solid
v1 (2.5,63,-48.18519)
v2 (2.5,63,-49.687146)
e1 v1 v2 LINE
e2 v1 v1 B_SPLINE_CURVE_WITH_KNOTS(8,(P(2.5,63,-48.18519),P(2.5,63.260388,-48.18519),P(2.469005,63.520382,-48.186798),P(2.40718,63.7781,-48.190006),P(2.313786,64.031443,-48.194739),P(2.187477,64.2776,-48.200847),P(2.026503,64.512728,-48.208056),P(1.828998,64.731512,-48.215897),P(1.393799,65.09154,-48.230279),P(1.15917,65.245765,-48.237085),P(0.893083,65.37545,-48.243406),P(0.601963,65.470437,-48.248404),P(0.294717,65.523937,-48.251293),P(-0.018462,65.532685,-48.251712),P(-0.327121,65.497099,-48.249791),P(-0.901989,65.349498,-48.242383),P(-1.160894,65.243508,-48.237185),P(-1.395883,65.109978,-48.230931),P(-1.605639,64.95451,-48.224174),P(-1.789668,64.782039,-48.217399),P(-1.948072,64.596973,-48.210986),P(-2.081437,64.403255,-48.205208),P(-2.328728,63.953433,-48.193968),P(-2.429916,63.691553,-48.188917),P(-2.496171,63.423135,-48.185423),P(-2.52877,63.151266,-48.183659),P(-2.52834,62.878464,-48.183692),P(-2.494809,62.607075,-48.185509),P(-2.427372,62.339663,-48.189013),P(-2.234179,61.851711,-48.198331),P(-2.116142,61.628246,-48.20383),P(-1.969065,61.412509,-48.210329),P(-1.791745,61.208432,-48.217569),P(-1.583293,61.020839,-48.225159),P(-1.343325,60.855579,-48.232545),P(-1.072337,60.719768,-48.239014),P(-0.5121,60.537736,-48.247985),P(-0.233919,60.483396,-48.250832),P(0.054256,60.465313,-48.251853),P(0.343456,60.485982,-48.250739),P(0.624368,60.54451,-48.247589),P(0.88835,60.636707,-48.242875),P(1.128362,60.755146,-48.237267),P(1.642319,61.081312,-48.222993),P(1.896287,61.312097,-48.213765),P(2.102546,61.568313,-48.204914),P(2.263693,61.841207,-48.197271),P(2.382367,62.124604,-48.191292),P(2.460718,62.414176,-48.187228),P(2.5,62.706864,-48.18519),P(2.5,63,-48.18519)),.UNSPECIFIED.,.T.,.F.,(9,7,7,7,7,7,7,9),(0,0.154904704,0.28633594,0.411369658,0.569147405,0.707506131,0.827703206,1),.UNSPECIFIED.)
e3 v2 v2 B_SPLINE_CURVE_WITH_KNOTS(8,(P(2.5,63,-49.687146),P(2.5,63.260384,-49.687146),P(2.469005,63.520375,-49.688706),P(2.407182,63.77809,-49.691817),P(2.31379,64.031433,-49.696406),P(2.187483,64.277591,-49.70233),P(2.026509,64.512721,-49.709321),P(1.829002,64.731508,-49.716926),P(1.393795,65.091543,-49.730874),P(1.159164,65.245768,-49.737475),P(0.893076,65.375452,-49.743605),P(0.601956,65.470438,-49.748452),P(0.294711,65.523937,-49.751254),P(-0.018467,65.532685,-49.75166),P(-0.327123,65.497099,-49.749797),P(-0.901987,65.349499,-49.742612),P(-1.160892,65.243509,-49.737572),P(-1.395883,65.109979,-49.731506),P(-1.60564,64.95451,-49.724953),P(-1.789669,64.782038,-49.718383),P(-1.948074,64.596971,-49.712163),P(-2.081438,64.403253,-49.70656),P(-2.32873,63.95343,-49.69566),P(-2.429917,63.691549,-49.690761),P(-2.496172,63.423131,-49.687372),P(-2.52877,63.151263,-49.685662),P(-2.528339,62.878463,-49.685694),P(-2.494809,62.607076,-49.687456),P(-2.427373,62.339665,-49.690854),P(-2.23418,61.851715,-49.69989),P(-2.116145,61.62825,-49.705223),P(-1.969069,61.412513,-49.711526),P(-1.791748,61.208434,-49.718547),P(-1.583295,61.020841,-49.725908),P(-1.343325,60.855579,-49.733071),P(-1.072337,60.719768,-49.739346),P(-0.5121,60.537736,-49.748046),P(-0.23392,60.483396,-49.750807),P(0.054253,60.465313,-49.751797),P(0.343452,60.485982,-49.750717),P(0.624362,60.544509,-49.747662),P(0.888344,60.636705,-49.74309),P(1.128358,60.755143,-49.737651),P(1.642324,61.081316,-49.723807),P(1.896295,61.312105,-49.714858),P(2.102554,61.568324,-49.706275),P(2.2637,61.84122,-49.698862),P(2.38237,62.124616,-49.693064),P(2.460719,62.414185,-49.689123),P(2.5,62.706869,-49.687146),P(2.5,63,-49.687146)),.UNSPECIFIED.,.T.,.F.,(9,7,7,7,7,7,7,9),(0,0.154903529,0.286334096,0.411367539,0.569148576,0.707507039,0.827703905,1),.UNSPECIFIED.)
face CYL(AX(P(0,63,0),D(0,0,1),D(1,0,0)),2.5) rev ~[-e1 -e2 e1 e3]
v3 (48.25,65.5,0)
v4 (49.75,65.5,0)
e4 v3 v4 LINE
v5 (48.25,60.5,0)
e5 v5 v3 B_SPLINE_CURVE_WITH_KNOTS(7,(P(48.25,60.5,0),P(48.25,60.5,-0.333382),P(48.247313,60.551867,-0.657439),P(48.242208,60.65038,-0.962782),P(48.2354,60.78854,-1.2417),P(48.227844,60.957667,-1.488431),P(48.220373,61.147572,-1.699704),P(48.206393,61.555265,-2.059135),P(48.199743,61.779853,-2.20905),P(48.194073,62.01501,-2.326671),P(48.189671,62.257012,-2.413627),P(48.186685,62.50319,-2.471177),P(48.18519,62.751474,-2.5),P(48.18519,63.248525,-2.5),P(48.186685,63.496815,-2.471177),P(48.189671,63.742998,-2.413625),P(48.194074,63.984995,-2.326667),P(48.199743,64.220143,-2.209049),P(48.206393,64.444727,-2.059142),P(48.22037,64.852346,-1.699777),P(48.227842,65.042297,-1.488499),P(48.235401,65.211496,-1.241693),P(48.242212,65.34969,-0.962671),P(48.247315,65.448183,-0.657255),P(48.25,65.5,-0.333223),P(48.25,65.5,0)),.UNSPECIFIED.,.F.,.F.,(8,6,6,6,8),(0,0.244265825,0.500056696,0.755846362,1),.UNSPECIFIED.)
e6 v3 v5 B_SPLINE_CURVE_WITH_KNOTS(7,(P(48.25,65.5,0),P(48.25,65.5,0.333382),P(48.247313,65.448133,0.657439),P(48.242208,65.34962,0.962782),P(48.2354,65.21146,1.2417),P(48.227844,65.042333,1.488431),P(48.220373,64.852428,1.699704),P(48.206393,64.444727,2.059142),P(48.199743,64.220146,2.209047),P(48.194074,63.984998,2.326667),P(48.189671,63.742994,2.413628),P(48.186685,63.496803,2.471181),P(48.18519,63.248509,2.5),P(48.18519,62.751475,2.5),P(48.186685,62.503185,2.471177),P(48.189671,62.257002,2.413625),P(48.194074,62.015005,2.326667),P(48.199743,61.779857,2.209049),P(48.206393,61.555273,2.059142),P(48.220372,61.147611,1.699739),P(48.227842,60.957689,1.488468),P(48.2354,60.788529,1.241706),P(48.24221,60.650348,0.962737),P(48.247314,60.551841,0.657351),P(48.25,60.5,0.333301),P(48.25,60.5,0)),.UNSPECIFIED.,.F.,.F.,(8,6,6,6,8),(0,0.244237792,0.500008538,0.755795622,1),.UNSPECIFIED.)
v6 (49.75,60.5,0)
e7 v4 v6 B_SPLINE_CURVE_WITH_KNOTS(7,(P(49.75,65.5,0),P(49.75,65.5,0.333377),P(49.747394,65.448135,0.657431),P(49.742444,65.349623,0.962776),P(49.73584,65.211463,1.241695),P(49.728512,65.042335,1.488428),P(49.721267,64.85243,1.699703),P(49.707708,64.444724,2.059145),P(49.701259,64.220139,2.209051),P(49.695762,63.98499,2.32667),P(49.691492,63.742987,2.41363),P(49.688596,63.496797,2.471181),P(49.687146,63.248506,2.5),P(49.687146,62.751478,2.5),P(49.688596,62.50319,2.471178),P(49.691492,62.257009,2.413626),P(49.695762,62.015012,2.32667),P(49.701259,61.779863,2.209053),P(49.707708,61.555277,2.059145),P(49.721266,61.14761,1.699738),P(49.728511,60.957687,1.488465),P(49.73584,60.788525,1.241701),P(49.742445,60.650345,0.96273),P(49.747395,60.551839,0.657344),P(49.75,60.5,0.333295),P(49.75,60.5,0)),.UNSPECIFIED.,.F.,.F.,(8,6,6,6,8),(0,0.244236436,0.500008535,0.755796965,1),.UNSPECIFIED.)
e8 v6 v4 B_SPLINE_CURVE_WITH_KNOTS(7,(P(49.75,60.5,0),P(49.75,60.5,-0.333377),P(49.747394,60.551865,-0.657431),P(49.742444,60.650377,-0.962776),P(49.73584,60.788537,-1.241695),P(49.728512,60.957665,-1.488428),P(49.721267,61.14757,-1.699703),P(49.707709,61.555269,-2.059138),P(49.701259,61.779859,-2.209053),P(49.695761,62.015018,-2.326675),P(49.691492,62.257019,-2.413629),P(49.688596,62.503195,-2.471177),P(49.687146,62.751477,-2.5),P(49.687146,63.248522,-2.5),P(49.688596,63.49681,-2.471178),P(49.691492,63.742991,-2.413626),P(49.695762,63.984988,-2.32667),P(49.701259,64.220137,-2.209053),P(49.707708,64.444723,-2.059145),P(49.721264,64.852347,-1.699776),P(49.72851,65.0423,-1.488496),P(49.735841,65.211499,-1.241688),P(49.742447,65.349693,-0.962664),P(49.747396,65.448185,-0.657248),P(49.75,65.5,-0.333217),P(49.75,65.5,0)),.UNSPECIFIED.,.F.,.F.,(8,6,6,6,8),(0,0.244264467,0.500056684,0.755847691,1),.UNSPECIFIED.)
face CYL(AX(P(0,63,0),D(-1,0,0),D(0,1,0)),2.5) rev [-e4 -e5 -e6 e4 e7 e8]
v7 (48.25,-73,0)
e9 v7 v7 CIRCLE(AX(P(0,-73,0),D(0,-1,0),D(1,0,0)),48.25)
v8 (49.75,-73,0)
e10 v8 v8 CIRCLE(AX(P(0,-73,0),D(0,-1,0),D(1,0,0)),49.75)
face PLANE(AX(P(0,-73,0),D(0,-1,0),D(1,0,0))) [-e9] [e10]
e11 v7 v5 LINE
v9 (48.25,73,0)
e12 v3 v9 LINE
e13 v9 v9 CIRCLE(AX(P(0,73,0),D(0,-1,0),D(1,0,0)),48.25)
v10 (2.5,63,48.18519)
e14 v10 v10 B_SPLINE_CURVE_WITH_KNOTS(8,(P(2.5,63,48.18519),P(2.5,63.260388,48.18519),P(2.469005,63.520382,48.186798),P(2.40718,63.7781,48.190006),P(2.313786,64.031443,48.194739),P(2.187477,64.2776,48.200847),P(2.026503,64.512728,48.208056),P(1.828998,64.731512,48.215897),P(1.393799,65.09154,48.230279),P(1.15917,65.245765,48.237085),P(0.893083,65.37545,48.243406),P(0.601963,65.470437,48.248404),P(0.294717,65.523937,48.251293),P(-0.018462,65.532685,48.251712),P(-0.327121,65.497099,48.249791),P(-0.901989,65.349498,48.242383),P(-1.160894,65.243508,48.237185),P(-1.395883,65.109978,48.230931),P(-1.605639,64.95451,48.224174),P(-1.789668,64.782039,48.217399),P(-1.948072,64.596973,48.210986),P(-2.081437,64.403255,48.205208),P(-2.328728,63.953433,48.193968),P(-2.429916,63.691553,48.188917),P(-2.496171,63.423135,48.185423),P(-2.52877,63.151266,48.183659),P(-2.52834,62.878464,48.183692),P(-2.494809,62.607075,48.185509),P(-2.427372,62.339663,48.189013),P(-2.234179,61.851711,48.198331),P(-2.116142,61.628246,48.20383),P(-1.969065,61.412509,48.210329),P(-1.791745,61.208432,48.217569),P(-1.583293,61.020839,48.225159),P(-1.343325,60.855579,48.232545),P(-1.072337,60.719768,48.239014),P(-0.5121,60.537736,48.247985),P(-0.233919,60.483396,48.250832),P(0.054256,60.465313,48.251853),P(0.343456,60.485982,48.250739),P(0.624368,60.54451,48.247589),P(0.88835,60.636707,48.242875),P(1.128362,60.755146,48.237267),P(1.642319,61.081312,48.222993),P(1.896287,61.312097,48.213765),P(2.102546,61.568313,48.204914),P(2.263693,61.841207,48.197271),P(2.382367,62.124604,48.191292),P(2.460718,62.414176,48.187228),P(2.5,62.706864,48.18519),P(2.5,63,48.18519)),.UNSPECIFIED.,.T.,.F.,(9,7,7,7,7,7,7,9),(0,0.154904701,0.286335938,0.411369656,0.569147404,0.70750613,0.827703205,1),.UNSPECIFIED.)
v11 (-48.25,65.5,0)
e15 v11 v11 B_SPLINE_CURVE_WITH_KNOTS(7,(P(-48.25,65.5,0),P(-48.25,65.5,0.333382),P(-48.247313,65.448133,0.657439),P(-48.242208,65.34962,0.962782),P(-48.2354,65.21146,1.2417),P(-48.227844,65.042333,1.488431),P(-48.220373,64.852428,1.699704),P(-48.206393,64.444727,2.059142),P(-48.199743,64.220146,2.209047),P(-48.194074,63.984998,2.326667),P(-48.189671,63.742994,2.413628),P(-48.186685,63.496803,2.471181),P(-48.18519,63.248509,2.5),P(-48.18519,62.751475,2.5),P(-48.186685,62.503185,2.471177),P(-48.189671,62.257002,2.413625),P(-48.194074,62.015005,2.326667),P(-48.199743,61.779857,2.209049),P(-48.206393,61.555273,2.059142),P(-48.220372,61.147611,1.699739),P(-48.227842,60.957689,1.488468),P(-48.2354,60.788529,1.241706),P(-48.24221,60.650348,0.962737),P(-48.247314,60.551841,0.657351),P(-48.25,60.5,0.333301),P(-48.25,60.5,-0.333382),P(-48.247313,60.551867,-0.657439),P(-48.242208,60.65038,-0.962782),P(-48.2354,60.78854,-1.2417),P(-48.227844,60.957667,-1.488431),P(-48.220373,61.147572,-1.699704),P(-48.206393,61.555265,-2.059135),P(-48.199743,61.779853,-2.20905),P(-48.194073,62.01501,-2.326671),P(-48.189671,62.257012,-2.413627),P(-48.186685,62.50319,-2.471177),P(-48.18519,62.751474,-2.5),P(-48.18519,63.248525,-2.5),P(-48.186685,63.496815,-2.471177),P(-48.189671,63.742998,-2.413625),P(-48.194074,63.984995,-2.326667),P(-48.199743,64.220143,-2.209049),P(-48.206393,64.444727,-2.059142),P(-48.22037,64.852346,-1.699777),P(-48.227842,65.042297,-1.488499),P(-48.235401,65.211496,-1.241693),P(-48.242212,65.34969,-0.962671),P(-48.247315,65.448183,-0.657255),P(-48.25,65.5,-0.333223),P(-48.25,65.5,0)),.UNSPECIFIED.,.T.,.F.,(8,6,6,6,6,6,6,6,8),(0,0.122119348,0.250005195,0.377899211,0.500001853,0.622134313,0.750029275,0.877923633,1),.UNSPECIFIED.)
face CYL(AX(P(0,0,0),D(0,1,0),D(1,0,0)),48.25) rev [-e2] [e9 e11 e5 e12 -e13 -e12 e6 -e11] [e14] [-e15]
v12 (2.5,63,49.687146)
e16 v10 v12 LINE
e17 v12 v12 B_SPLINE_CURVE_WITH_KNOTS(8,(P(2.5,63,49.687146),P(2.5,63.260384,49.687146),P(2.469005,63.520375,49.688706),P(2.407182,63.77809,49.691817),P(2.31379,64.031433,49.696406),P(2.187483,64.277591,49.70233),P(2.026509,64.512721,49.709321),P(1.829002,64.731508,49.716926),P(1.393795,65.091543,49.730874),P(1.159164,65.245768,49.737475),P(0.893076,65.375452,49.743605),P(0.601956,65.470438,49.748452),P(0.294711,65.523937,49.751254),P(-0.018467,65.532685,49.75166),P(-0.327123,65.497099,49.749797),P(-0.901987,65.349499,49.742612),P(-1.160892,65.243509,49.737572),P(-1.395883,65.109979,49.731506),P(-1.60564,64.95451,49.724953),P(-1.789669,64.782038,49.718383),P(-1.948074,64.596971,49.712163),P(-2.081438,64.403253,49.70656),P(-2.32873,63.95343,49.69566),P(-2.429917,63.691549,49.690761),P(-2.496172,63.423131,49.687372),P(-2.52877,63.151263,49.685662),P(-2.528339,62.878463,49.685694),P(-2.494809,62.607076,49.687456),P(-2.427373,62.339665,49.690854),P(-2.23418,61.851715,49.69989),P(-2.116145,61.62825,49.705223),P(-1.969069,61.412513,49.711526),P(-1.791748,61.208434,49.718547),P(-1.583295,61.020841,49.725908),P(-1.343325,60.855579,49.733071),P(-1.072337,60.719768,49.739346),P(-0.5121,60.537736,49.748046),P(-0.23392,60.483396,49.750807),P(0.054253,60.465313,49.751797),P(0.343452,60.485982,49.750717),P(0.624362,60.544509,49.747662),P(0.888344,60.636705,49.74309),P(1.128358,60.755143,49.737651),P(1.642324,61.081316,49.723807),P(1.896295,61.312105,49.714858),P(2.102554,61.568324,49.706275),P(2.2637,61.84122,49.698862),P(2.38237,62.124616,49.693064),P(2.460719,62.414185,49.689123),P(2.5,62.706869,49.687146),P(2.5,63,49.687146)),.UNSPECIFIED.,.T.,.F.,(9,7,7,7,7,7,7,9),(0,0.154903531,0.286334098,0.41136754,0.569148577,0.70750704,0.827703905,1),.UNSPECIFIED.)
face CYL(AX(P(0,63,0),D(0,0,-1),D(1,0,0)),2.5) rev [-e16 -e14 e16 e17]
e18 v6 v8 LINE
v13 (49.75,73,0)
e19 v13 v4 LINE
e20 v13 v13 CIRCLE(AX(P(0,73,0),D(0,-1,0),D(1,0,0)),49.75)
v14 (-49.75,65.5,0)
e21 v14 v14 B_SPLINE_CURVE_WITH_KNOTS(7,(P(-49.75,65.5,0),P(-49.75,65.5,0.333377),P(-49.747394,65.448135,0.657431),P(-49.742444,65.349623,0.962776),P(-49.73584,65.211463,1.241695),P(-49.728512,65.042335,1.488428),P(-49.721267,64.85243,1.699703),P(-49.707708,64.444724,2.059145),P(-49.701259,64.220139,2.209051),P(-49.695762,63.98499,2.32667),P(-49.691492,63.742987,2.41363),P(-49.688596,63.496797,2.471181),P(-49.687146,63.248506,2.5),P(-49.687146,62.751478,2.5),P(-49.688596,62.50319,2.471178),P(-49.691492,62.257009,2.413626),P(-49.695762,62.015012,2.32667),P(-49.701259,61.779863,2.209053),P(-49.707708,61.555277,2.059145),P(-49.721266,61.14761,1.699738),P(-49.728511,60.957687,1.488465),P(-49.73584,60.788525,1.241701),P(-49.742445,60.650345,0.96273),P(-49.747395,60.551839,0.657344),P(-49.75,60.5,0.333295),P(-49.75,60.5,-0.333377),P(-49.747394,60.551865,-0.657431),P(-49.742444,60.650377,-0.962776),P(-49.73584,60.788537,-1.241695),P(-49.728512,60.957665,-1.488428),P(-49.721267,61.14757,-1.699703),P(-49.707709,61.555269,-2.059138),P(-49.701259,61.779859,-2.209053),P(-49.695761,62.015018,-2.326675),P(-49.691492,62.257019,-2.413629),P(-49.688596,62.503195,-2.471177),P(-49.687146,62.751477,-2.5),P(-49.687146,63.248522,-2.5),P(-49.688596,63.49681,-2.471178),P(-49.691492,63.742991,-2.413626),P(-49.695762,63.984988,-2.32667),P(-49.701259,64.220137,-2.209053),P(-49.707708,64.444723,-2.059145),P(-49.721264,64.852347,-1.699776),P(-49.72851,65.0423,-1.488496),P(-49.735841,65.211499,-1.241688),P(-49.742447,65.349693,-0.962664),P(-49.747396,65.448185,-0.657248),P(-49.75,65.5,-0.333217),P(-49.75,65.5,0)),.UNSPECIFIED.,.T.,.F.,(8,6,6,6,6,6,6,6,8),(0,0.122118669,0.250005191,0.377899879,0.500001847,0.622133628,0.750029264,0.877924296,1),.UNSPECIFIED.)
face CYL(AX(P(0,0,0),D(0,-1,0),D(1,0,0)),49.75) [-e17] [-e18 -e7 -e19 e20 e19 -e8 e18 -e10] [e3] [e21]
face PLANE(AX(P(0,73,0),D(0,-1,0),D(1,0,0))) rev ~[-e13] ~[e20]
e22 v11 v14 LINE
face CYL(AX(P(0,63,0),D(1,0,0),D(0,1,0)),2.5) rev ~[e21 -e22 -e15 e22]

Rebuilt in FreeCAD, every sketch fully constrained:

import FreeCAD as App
import Part
import Sketcher

V = App.Vector

doc = App.newDocument("Part")
body = doc.addObject("PartDesign::Body", "Body")

sketch1 = body.newObject("Sketcher::SketchObject", "Sketch")
sketch1.AttachmentSupport = (doc.getObject("XZ_Plane"), [""])
sketch1.MapMode = "FlatFace"
sketch1.addGeometry([
    Part.Circle(V(0, 0, 0), V(0, 0, 1), 50),
    Part.Circle(V(0, 0, 0), V(0, 0, 1), 48),
], False)
sketch1.addConstraint([
    Sketcher.Constraint("Coincident", 0, 3, -1, 1),
    Sketcher.Constraint("Coincident", 1, 3, -1, 1),
    Sketcher.Constraint("Diameter", 0, 99.5),
    Sketcher.Constraint("Diameter", 1, 96.5),
])
pad1 = body.newObject("PartDesign::Pad", "Pad")
pad1.Profile = sketch1
pad1.Length = 146
pad1.Midplane = True

sketch2 = body.newObject("Sketcher::SketchObject", "Sketch001")
sketch2.AttachmentSupport = (doc.getObject("YZ_Plane"), [""])
sketch2.MapMode = "FlatFace"
sketch2.addGeometry(Part.Circle(V(63, 0, 0), V(0, 0, 1), 2.5), False)
sketch2.addConstraint([
    Sketcher.Constraint("PointOnObject", 0, 3, -1),
    Sketcher.Constraint("Diameter", 0, 5.0),
    Sketcher.Constraint("DistanceX", -1, 1, 0, 3, 63.0),
])
pocket1 = body.newObject("PartDesign::Pocket", "Pocket")
pocket1.Profile = sketch2
pocket1.Type = "ThroughAll"
pocket1.Midplane = True

sketch3 = body.newObject("Sketcher::SketchObject", "Sketch002")
sketch3.AttachmentSupport = (doc.getObject("XY_Plane"), [""])
sketch3.MapMode = "FlatFace"
sketch3.addGeometry(Part.Circle(V(0, 63, 0), V(0, 0, 1), 2.5), False)
sketch3.addConstraint([
    Sketcher.Constraint("PointOnObject", 0, 3, -2),
    Sketcher.Constraint("Diameter", 0, 5.0),
    Sketcher.Constraint("DistanceY", -1, 1, 0, 3, 63.0),
])
pocket2 = body.newObject("PartDesign::Pocket", "Pocket001")
pocket2.Profile = sketch3
pocket2.Type = "ThroughAll"
pocket2.Midplane = True

doc.recompute()
